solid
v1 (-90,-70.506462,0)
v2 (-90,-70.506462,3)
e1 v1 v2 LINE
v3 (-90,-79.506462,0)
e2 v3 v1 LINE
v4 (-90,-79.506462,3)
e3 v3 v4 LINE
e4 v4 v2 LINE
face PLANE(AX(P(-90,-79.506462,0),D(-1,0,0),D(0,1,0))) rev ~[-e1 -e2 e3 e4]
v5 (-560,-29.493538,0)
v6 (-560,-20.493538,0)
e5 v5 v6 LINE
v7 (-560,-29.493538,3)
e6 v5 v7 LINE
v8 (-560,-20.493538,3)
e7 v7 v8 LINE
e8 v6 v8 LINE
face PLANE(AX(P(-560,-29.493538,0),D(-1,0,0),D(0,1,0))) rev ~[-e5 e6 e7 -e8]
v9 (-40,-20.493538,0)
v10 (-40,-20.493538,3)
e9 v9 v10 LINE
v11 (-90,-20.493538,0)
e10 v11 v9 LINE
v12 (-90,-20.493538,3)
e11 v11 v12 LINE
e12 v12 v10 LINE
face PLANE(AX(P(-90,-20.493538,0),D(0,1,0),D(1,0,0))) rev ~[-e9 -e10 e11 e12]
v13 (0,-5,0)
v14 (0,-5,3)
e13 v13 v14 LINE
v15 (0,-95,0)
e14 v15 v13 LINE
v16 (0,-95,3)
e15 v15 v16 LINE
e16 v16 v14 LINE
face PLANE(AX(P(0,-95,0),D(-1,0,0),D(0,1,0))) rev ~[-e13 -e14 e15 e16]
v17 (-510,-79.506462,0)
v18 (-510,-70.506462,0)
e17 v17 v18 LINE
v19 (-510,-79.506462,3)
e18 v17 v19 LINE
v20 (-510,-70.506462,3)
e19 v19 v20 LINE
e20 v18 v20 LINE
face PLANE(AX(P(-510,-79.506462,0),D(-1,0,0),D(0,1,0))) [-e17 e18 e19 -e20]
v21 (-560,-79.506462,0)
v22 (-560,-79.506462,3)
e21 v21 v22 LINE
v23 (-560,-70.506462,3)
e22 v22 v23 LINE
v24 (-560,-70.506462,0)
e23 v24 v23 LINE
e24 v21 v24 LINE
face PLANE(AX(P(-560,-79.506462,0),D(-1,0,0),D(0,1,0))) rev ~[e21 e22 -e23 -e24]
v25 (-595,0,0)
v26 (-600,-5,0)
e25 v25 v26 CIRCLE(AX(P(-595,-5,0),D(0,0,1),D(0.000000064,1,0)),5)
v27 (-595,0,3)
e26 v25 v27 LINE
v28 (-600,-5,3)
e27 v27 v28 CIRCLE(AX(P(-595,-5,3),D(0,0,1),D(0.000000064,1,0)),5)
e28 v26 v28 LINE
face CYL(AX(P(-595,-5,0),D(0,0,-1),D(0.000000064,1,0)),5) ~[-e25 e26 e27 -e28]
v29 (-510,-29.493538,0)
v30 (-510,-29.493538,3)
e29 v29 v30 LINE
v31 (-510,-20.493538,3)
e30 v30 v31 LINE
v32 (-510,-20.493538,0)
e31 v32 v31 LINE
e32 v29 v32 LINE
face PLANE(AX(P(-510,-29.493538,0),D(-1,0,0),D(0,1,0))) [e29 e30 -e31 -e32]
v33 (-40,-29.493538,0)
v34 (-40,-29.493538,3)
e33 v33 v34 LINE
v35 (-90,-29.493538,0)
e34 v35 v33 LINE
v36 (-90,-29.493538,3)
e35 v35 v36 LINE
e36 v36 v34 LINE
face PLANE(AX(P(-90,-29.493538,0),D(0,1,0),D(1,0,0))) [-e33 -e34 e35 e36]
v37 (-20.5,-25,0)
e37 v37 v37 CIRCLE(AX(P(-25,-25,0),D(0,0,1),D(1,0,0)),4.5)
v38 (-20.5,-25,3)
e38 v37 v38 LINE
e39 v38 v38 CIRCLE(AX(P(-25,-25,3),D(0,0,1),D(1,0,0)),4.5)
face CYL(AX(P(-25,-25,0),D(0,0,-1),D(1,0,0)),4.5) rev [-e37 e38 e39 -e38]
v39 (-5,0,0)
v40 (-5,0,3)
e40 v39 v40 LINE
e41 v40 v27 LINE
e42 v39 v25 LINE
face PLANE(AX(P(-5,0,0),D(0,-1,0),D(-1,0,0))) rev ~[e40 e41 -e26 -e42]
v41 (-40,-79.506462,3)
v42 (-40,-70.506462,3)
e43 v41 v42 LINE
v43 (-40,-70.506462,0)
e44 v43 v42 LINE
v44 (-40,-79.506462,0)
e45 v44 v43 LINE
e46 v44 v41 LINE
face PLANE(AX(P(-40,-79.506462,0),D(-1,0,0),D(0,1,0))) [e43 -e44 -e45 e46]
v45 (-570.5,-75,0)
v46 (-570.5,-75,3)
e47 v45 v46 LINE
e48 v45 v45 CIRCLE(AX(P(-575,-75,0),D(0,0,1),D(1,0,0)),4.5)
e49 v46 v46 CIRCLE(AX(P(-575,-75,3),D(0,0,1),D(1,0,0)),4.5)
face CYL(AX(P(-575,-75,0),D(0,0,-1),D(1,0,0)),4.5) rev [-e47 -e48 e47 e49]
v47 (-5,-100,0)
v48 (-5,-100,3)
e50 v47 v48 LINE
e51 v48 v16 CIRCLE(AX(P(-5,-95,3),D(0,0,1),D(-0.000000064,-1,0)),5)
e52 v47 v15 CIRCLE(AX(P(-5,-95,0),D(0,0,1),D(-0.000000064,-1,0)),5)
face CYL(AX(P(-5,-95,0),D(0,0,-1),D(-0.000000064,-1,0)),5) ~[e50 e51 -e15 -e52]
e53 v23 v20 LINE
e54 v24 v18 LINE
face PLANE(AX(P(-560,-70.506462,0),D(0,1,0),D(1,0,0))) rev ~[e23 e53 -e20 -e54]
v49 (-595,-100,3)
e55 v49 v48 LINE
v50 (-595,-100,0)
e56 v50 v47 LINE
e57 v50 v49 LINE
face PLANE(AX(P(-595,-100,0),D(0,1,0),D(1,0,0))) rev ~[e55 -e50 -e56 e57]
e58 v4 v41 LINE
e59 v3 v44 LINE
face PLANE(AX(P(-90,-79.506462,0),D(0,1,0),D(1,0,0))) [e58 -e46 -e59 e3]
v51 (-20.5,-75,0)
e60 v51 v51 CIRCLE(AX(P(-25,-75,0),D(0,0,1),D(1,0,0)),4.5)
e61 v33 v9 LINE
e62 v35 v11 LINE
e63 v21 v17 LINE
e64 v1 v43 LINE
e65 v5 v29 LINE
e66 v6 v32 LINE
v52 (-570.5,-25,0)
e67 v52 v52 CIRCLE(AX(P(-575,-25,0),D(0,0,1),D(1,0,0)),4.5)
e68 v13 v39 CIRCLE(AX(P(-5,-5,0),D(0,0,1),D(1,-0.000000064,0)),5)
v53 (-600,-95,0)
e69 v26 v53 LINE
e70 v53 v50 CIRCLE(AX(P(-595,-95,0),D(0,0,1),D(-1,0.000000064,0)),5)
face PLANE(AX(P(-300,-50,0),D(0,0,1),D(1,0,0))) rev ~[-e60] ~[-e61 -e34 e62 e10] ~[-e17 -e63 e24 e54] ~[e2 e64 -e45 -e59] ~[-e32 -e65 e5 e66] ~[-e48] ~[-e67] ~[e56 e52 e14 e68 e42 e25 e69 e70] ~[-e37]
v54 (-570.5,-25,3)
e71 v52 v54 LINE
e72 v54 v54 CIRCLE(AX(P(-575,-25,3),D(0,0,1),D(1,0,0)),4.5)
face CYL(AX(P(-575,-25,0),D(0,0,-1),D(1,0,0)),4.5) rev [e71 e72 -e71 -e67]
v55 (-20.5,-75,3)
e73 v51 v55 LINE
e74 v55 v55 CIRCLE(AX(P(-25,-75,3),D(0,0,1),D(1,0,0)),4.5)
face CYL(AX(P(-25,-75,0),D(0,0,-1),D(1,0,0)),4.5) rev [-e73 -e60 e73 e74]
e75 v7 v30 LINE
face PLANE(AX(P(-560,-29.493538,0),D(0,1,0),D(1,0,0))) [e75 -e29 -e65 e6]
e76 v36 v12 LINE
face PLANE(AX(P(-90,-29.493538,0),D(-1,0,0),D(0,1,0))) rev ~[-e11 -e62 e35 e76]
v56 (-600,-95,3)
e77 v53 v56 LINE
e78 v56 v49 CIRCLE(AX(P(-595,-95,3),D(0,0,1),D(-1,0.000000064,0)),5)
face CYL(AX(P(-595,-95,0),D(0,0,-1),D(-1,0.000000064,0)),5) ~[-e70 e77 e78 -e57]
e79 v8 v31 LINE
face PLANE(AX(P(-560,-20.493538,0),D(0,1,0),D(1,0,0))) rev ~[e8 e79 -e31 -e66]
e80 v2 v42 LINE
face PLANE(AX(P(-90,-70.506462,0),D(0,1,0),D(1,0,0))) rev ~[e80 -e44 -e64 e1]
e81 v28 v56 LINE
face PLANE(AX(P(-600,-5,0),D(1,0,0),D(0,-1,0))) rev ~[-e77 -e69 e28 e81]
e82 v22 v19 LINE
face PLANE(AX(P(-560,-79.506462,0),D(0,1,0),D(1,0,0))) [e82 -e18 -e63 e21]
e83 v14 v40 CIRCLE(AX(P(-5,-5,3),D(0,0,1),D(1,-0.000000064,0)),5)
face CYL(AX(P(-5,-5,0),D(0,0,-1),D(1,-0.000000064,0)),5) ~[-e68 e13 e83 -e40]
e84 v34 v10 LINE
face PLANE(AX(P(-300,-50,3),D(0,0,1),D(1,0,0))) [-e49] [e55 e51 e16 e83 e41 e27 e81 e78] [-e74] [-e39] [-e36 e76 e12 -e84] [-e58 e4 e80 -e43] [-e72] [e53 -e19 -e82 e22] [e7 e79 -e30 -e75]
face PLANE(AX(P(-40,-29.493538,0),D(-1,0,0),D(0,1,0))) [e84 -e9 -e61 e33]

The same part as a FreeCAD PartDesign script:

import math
import FreeCAD as App
import Part
import Sketcher

V = App.Vector
Q = App.Units.Quantity

doc = App.newDocument("Part")
body = doc.addObject("PartDesign::Body", "Body")

sketch1 = doc.addObject("Sketcher::SketchObject", "Sketch")
body.addObject(sketch1)
sketch1.AttachmentSupport = (doc.XY_Plane, [""])
sketch1.MapMode = "FlatFace"
sketch1.addGeometry([
    Part.ArcOfCircle(Part.Circle(V(-5, -5, 0), V(0, 0, 1), 5), math.radians(0), math.radians(90)),
    Part.LineSegment(V(-5, 0, 0), V(-595, 0, 0)),
    Part.ArcOfCircle(Part.Circle(V(-595, -5, 0), V(0, 0, 1), 5), math.radians(90), math.radians(180)),
    Part.LineSegment(V(-600, -5, 0), V(-600, -95, 0)),
    Part.ArcOfCircle(Part.Circle(V(-595, -95, 0), V(0, 0, 1), 5), math.radians(180), math.radians(270)),
    Part.LineSegment(V(-595, -100, 0), V(-5, -100, 0)),
    Part.ArcOfCircle(Part.Circle(V(-5, -95, 0), V(0, 0, 1), 5), math.radians(-90), math.radians(0)),
    Part.LineSegment(V(0, -95, 0), V(0, -5, 0)),
    Part.Circle(V(-575, -75, 0), V(0, 0, 1), 4.5),
    Part.LineSegment(V(-510, -79.5, 0), V(-560, -79.5, 0)),
    Part.LineSegment(V(-560, -79.5, 0), V(-560, -70.5, 0)),
    Part.LineSegment(V(-560, -70.5, 0), V(-510, -70.5, 0)),
    Part.LineSegment(V(-510, -70.5, 0), V(-510, -79.5, 0)),
    Part.LineSegment(V(-40, -79.5, 0), V(-90, -79.5, 0)),
    Part.LineSegment(V(-90, -79.5, 0), V(-90, -70.5, 0)),
    Part.LineSegment(V(-90, -70.5, 0), V(-40, -70.5, 0)),
    Part.LineSegment(V(-40, -70.5, 0), V(-40, -79.5, 0)),
    Part.Circle(V(-25, -75, 0), V(0, 0, 1), 4.5),
    Part.Circle(V(-575, -25, 0), V(0, 0, 1), 4.5),
    Part.LineSegment(V(-510, -29.5, 0), V(-560, -29.5, 0)),
    Part.LineSegment(V(-560, -29.5, 0), V(-560, -20.5, 0)),
    Part.LineSegment(V(-560, -20.5, 0), V(-510, -20.5, 0)),
    Part.LineSegment(V(-510, -20.5, 0), V(-510, -29.5, 0)),
    Part.LineSegment(V(-40, -29.5, 0), V(-90, -29.5, 0)),
    Part.LineSegment(V(-90, -29.5, 0), V(-90, -20.5, 0)),
    Part.LineSegment(V(-90, -20.5, 0), V(-40, -20.5, 0)),
    Part.LineSegment(V(-40, -20.5, 0), V(-40, -29.5, 0)),
    Part.Circle(V(-25, -25, 0), V(0, 0, 1), 4.5),
], False)
sketch1.addConstraint([
    Sketcher.Constraint("Tangent", 0, 2, 1, 1),
    Sketcher.Constraint("Tangent", 1, 2, 2, 1),
    Sketcher.Constraint("Tangent", 2, 2, 3, 1),
    Sketcher.Constraint("Tangent", 3, 2, 4, 1),
    Sketcher.Constraint("Tangent", 4, 2, 5, 1),
    Sketcher.Constraint("Tangent", 5, 2, 6, 1),
    Sketcher.Constraint("Tangent", 6, 2, 7, 1),
    Sketcher.Constraint("Tangent", 7, 2, 0, 1),
    Sketcher.Constraint("Coincident", 9, 2, 10, 1),
    Sketcher.Constraint("Coincident", 10, 2, 11, 1),
    Sketcher.Constraint("Coincident", 11, 2, 12, 1),
    Sketcher.Constraint("Coincident", 12, 2, 9, 1),
    Sketcher.Constraint("Coincident", 13, 2, 14, 1),
    Sketcher.Constraint("Coincident", 14, 2, 15, 1),
    Sketcher.Constraint("Coincident", 15, 2, 16, 1),
    Sketcher.Constraint("Coincident", 16, 2, 13, 1),
    Sketcher.Constraint("Coincident", 19, 2, 20, 1),
    Sketcher.Constraint("Coincident", 20, 2, 21, 1),
    Sketcher.Constraint("Coincident", 21, 2, 22, 1),
    Sketcher.Constraint("Coincident", 22, 2, 19, 1),
    Sketcher.Constraint("Coincident", 23, 2, 24, 1),
    Sketcher.Constraint("Coincident", 24, 2, 25, 1),
    Sketcher.Constraint("Coincident", 25, 2, 26, 1),
    Sketcher.Constraint("Coincident", 26, 2, 23, 1),
    Sketcher.Constraint("Horizontal", 1),
    Sketcher.Constraint("Vertical", 3),
    Sketcher.Constraint("Horizontal", 5),
    Sketcher.Constraint("Vertical", 7),
    Sketcher.Constraint("Horizontal", 9),
    Sketcher.Constraint("Vertical", 10),
    Sketcher.Constraint("Horizontal", 11),
    Sketcher.Constraint("Vertical", 12),
    Sketcher.Constraint("Horizontal", 13),
    Sketcher.Constraint("Vertical", 14),
    Sketcher.Constraint("Horizontal", 15),
    Sketcher.Constraint("Vertical", 16),
    Sketcher.Constraint("Horizontal", 19),
    Sketcher.Constraint("Vertical", 20),
    Sketcher.Constraint("Horizontal", 21),
    Sketcher.Constraint("Vertical", 22),
    Sketcher.Constraint("Horizontal", 23),
    Sketcher.Constraint("Vertical", 24),
    Sketcher.Constraint("Horizontal", 25),
    Sketcher.Constraint("Vertical", 26),
    Sketcher.Constraint("Equal", 0, 2),
    Sketcher.Constraint("Equal", 2, 4),
    Sketcher.Constraint("Equal", 4, 6),
    Sketcher.Constraint("Equal", 8, 17),
    Sketcher.Constraint("Equal", 17, 18),
    Sketcher.Constraint("Equal", 18, 27),
    Sketcher.Constraint("PointOnObject", 0, 2, -1),
    Sketcher.Constraint("PointOnObject", 6, 2, -2),
    Sketcher.Constraint("Horizontal", 8, 3, 17, 3),
    Sketcher.Constraint("Horizontal", 18, 3, 27, 3),
    Sketcher.Constraint("Horizontal", 12, 2, 13, 2),
    Sketcher.Constraint("Horizontal", 11, 2, 14, 2),
    Sketcher.Constraint("Horizontal", 22, 2, 23, 2),
    Sketcher.Constraint("Horizontal", 21, 2, 24, 2),
    Sketcher.Constraint("Vertical", 8, 3, 18, 3),
    Sketcher.Constraint("Vertical", 17, 3, 27, 3),
    Sketcher.Constraint("Vertical", 10, 2, 19, 2),
    Sketcher.Constraint("Vertical", 12, 2, 21, 2),
    Sketcher.Constraint("Vertical", 14, 2, 23, 2),
    Sketcher.Constraint("Vertical", 16, 2, 25, 2),
    Sketcher.Constraint("Equal", 11, 13),
    Sketcher.Constraint("Equal", 16, 20),
    Sketcher.Constraint("Diameter", 8, Q("9 mm")),
    Sketcher.Constraint("Radius", 0, Q("5 mm")),
    Sketcher.Constraint("DistanceX", 1, 2, 1, 1, Q("590 mm")),
    Sketcher.Constraint("DistanceX", 9, 2, 9, 1, Q("50 mm")),
    Sketcher.Constraint("DistanceY", 3, 2, 3, 1, Q("90 mm")),
    Sketcher.Constraint("DistanceY", 10, 1, 10, 2, Q("9 mm")),
    Sketcher.Constraint("DistanceX", 8, 3, -1, 1, Q("575 mm")),
    Sketcher.Constraint("DistanceY", 8, 3, -1, 1, Q("75 mm")),
    Sketcher.Constraint("DistanceX", 17, 3, -1, 1, Q("25 mm")),
    Sketcher.Constraint("DistanceY", 18, 3, -1, 1, Q("25 mm")),
    Sketcher.Constraint("DistanceX", 9, 2, -1, 1, Q("560 mm")),
    Sketcher.Constraint("DistanceX", 13, 2, -1, 1, Q("90 mm")),
    Sketcher.Constraint("DistanceY", 9, 2, -1, 1, Q("79.506462 mm")),
    Sketcher.Constraint("DistanceY", 19, 2, -1, 1, Q("29.493538 mm")),
])
pad1 = doc.addObject("PartDesign::Pad", "Pad")
body.addObject(pad1)
pad1.Profile = sketch1
pad1.Length = 3

doc.recompute()
